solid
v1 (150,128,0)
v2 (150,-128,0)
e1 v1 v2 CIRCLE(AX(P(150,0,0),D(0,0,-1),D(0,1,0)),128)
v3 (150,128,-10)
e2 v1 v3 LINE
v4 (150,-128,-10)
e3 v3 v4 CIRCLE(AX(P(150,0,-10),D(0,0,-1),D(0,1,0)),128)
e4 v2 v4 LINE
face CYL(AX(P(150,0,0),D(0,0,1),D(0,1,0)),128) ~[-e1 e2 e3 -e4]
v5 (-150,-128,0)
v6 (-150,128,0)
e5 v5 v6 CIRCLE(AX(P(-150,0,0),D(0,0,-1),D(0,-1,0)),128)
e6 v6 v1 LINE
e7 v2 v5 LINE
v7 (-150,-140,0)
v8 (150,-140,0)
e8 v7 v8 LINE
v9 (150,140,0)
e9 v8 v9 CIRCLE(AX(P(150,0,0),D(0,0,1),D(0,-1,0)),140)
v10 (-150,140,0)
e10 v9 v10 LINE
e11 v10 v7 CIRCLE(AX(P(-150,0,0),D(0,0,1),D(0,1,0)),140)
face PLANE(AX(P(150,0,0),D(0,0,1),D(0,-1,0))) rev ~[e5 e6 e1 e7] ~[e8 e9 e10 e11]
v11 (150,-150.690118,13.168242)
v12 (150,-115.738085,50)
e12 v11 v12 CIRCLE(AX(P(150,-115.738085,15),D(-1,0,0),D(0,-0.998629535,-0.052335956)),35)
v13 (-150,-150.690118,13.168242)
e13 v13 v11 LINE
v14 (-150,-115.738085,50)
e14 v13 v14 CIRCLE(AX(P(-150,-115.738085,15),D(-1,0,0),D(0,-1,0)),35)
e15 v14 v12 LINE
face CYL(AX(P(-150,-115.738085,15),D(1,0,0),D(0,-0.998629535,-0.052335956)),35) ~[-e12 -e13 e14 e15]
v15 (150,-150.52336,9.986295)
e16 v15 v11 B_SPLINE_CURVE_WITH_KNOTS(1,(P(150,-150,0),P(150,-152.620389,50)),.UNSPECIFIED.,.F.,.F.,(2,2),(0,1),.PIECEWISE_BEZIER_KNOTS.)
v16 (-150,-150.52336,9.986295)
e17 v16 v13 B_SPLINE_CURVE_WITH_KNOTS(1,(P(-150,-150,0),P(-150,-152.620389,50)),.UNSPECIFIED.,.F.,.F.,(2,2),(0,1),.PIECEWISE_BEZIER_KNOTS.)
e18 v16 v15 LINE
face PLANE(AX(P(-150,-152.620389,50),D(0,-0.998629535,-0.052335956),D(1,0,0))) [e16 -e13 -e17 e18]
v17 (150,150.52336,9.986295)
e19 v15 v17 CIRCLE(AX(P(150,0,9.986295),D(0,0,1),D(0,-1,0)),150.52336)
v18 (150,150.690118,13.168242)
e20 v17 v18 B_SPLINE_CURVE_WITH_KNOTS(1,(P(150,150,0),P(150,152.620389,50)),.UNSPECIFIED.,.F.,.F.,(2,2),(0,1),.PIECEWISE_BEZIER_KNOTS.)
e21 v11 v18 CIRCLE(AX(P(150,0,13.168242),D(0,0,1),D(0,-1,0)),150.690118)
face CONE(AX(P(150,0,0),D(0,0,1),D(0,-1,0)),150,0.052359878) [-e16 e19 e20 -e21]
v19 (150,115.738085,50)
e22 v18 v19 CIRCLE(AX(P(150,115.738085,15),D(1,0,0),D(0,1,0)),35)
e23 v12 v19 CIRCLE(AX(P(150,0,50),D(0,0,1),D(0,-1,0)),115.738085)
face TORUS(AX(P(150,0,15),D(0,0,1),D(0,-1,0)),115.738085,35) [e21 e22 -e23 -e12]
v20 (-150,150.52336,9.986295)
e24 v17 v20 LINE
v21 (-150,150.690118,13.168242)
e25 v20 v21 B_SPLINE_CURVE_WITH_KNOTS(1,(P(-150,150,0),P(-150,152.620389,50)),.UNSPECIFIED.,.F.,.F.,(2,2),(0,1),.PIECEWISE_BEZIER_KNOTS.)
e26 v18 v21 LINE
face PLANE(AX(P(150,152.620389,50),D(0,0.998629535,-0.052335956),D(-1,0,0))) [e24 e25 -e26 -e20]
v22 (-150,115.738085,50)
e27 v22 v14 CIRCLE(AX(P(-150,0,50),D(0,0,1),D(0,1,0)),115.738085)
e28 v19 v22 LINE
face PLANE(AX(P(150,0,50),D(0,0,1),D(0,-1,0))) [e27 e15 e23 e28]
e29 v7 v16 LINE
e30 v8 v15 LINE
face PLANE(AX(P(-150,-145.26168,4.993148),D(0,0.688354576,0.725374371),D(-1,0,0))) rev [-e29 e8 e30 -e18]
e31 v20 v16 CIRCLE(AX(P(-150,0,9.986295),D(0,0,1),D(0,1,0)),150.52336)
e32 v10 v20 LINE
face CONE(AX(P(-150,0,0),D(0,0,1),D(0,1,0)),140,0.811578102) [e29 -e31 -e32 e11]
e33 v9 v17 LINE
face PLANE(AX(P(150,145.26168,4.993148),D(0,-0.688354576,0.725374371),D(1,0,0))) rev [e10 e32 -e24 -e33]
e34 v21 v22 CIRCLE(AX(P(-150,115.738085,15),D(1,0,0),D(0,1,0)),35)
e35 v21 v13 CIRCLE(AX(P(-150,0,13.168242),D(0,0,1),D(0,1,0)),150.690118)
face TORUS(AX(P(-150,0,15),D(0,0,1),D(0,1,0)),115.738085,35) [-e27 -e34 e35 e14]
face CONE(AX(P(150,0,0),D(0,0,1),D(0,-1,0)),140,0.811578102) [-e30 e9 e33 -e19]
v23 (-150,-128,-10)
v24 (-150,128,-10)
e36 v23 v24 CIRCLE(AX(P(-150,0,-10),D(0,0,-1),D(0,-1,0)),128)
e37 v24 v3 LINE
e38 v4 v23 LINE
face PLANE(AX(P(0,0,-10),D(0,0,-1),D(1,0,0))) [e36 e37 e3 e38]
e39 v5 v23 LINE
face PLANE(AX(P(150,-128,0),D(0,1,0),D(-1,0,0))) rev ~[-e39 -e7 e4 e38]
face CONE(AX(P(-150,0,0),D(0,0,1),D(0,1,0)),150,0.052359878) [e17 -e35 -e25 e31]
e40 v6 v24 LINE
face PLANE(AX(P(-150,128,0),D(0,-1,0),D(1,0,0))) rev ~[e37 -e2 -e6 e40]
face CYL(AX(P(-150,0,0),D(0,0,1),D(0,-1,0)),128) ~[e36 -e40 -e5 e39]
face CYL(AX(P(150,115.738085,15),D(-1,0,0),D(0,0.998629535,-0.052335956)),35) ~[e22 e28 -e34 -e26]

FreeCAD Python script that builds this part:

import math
import FreeCAD as App
import Part
import Sketcher
from FreeCAD import Vector


def edges_at(feature, points):
    """Names of the edges that pass closest to the given points."""
    edges = feature.Shape.Edges
    near = lambda p: min(range(len(edges)), key=lambda i: edges[i].distToShape(Part.Vertex(*p))[0])
    return sorted({f"Edge{near(p) + 1}" for p in points})

doc = App.newDocument("Part")
body = doc.addObject("PartDesign::Body", "Body")

# Sketch on XY plane
sketch1 = body.newObject("Sketcher::SketchObject", "Sketch")
sketch1.AttachmentSupport = (doc.getObject("XY_Plane"), [""])
sketch1.MapMode = "FlatFace"
sketch1.addGeometry([
    Part.ArcOfCircle(Part.Circle(Vector(150, 0, 0), Vector(0, 0, 1), 150), math.radians(-90), math.radians(90)),
    Part.LineSegment(Vector(150, 150, 0), Vector(-150, 150, 0)),
    Part.ArcOfCircle(Part.Circle(Vector(-150, 0, 0), Vector(0, 0, 1), 150), math.radians(90), math.radians(270)),
    Part.LineSegment(Vector(-150, -150, 0), Vector(150, -150, 0)),
], False)
sketch1.addConstraint([
    Sketcher.Constraint("Tangent", 0, 2, 1, 1),
    Sketcher.Constraint("Tangent", 1, 2, 2, 1),
    Sketcher.Constraint("Tangent", 2, 2, 3, 1),
    Sketcher.Constraint("Tangent", 3, 2, 0, 1),
    Sketcher.Constraint("Horizontal", 1),
    Sketcher.Constraint("Horizontal", 3),
    Sketcher.Constraint("Symmetric", 0, 3, 2, 3, -1, 1),
    Sketcher.Constraint("Radius", 0, 150.0),
    Sketcher.Constraint("DistanceX", 1, 2, 1, 1, 300.0),
])
pad1 = body.newObject("PartDesign::Pad", "Pad")
pad1.Profile = sketch1
pad1.Length = 50
pad1.TaperAngle = 3
doc.recompute()

fillet = body.newObject("PartDesign::Fillet", "Fillet")
fillet.Base = (pad1, edges_at(pad1, [
    (-302.62, 0, 50),
    (0, -152.62, 50),
    (302.62, 0, 50),
    (0, 152.62, 50),
]))
fillet.Radius = 35
doc.recompute()

chamfer = body.newObject("PartDesign::Chamfer", "Chamfer")
chamfer.Base = (fillet, edges_at(fillet, [
    (-300, 0, 0),
    (0, -150, 0),
    (300, 0, 0),
    (0, 150, 0),
]))
chamfer.Size = 10

# Sketch on XY plane
sketch2 = body.newObject("Sketcher::SketchObject", "Sketch001")
sketch2.AttachmentSupport = (doc.getObject("XY_Plane"), [""])
sketch2.MapMode = "FlatFace"
sketch2.addGeometry([
    Part.LineSegment(Vector(150, -128, 0), Vector(-150, -128, 0)),
    Part.ArcOfCircle(Part.Circle(Vector(-150, 0, 0), Vector(0, 0, 1), 128), math.radians(90), math.radians(270)),
    Part.LineSegment(Vector(-150, 128, 0), Vector(150, 128, 0)),
    Part.ArcOfCircle(Part.Circle(Vector(150, 0, 0), Vector(0, 0, 1), 128), math.radians(-90), math.radians(90)),
], False)
sketch2.addConstraint([
    Sketcher.Constraint("Tangent", 0, 2, 1, 2),
    Sketcher.Constraint("Tangent", 1, 1, 2, 1),
    Sketcher.Constraint("Tangent", 2, 2, 3, 2),
    Sketcher.Constraint("Tangent", 3, 1, 0, 1),
    Sketcher.Constraint("Horizontal", 0),
    Sketcher.Constraint("Horizontal", 2),
    Sketcher.Constraint("Symmetric", 1, 3, 3, 3, -1, 1),
    Sketcher.Constraint("Radius", 1, 128.0),
    Sketcher.Constraint("DistanceX", 0, 2, 0, 1, 300.0),
])
pad2 = body.newObject("PartDesign::Pad", "Pad001")
pad2.Profile = sketch2
pad2.Length = 10
pad2.Reversed = True

doc.recompute()
